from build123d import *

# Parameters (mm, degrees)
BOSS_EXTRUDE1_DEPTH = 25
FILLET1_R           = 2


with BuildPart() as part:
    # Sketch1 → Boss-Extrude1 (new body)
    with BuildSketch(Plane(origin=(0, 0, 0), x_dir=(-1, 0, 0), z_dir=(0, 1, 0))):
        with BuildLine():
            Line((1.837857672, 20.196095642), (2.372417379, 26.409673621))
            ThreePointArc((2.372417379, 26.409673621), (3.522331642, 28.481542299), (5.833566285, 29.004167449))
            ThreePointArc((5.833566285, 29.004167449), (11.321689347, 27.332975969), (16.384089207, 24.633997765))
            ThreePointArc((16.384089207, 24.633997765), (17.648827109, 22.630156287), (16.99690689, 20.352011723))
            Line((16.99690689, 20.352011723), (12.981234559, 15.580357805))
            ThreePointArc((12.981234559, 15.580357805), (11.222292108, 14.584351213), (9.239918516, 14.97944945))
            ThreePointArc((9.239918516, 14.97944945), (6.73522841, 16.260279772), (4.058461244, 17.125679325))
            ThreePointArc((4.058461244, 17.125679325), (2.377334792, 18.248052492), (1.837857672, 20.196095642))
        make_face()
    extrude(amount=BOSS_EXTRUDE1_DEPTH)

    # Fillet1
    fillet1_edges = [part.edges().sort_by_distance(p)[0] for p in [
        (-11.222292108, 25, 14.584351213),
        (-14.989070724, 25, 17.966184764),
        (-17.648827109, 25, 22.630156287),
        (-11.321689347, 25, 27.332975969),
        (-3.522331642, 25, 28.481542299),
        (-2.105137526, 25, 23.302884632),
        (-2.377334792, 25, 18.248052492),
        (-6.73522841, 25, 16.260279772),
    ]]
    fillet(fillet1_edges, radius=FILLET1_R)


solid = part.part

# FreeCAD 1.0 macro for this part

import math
import FreeCAD as App
import Part
import Sketcher

V = App.Vector


def edges_at(feature, points):
    """Names of the edges that pass closest to the given points."""
    edges = feature.Shape.Edges
    near = lambda p: min(range(len(edges)), key=lambda i: edges[i].distToShape(Part.Vertex(*p))[0])
    return sorted({f"Edge{near(p) + 1}" for p in points})

doc = App.newDocument("Part")
body = doc.addObject("PartDesign::Body", "Body")

sketch1 = body.newObject("Sketcher::SketchObject", "Sketch")
sketch1.AttachmentSupport = (doc.getObject("XZ_Plane"), [""])
sketch1.MapMode = "FlatFace"
sketch1.addGeometry([
    Part.LineSegment(V(-2.4, 26.4, 0), V(-1.8, 20.2, 0)),
    Part.ArcOfCircle(Part.Circle(V(-4.7, 19.9, 0), V(0, 0, 1), 2.9), math.radians(-77), math.radians(5)),
    Part.ArcOfCircle(Part.Circle(V(0, 0, 0), V(0, 0, 1), 17.6), math.radians(103.33), math.radians(121.67)),
    Part.ArcOfCircle(Part.Circle(V(-10.8, 17.4, 0), V(0, 0, 1), 2.9), math.radians(-140), math.radians(-58)),
    Part.LineSegment(V(-13, 15.6, 0), V(-17, 20.4, 0)),
    Part.ArcOfCircle(Part.Circle(V(-14.8, 22.2, 0), V(0, 0, 1), 2.9), math.radians(124), math.radians(220)),
    Part.ArcOfCircle(Part.Circle(V(0, 0, 0), V(0, 0, 1), 29.6), math.radians(101), math.radians(124)),
    Part.ArcOfCircle(Part.Circle(V(-5.3, 26.2, 0), V(0, 0, 1), 2.9), math.radians(5), math.radians(101)),
], False)
sketch1.addConstraint([
    Sketcher.Constraint("Tangent", 0, 2, 1, 2),
    Sketcher.Constraint("Tangent", 1, 1, 2, 1),
    Sketcher.Constraint("Tangent", 2, 2, 3, 2),
    Sketcher.Constraint("Tangent", 3, 1, 4, 1),
    Sketcher.Constraint("Tangent", 4, 2, 5, 2),
    Sketcher.Constraint("Tangent", 5, 1, 6, 2),
    Sketcher.Constraint("Tangent", 6, 1, 7, 2),
    Sketcher.Constraint("Tangent", 7, 1, 0, 1),
    Sketcher.Constraint("Coincident", 2, 3, -1, 1),
    Sketcher.Constraint("Coincident", 6, 3, -1, 1),
    Sketcher.Constraint("Equal", 1, 3),
    Sketcher.Constraint("Equal", 3, 5),
    Sketcher.Constraint("Equal", 5, 7),
    Sketcher.Constraint("Equal", 0, 4),
    Sketcher.Constraint("Radius", 1, 2.9),
    Sketcher.Constraint("Radius", 2, 17.6),
    Sketcher.Constraint("Radius", 6, 29.585),
    Sketcher.Constraint("DistanceX", 4, 2, 3, 3, 6.234502),
    Sketcher.Constraint("Distance", 0, 6.23653),
    Sketcher.Constraint("DistanceX", 1, 1, -1, 1, 4.058461),
])
pad1 = body.newObject("PartDesign::Pad", "Pad")
pad1.Profile = sketch1
pad1.Length = 25
pad1.Reversed = True
doc.recompute()

fillet = body.newObject("PartDesign::Fillet", "Fillet")
fillet.Base = (pad1, edges_at(pad1, [
    (-11.222, 25, 14.584),
    (-14.989, 25, 17.966),
    (-17.649, 25, 22.63),
    (-11.322, 25, 27.333),
    (-3.522, 25, 28.482),
    (-2.105, 25, 23.303),
    (-2.377, 25, 18.248),
    (-6.735, 25, 16.26),
]))
fillet.Radius = 2

doc.recompute()
